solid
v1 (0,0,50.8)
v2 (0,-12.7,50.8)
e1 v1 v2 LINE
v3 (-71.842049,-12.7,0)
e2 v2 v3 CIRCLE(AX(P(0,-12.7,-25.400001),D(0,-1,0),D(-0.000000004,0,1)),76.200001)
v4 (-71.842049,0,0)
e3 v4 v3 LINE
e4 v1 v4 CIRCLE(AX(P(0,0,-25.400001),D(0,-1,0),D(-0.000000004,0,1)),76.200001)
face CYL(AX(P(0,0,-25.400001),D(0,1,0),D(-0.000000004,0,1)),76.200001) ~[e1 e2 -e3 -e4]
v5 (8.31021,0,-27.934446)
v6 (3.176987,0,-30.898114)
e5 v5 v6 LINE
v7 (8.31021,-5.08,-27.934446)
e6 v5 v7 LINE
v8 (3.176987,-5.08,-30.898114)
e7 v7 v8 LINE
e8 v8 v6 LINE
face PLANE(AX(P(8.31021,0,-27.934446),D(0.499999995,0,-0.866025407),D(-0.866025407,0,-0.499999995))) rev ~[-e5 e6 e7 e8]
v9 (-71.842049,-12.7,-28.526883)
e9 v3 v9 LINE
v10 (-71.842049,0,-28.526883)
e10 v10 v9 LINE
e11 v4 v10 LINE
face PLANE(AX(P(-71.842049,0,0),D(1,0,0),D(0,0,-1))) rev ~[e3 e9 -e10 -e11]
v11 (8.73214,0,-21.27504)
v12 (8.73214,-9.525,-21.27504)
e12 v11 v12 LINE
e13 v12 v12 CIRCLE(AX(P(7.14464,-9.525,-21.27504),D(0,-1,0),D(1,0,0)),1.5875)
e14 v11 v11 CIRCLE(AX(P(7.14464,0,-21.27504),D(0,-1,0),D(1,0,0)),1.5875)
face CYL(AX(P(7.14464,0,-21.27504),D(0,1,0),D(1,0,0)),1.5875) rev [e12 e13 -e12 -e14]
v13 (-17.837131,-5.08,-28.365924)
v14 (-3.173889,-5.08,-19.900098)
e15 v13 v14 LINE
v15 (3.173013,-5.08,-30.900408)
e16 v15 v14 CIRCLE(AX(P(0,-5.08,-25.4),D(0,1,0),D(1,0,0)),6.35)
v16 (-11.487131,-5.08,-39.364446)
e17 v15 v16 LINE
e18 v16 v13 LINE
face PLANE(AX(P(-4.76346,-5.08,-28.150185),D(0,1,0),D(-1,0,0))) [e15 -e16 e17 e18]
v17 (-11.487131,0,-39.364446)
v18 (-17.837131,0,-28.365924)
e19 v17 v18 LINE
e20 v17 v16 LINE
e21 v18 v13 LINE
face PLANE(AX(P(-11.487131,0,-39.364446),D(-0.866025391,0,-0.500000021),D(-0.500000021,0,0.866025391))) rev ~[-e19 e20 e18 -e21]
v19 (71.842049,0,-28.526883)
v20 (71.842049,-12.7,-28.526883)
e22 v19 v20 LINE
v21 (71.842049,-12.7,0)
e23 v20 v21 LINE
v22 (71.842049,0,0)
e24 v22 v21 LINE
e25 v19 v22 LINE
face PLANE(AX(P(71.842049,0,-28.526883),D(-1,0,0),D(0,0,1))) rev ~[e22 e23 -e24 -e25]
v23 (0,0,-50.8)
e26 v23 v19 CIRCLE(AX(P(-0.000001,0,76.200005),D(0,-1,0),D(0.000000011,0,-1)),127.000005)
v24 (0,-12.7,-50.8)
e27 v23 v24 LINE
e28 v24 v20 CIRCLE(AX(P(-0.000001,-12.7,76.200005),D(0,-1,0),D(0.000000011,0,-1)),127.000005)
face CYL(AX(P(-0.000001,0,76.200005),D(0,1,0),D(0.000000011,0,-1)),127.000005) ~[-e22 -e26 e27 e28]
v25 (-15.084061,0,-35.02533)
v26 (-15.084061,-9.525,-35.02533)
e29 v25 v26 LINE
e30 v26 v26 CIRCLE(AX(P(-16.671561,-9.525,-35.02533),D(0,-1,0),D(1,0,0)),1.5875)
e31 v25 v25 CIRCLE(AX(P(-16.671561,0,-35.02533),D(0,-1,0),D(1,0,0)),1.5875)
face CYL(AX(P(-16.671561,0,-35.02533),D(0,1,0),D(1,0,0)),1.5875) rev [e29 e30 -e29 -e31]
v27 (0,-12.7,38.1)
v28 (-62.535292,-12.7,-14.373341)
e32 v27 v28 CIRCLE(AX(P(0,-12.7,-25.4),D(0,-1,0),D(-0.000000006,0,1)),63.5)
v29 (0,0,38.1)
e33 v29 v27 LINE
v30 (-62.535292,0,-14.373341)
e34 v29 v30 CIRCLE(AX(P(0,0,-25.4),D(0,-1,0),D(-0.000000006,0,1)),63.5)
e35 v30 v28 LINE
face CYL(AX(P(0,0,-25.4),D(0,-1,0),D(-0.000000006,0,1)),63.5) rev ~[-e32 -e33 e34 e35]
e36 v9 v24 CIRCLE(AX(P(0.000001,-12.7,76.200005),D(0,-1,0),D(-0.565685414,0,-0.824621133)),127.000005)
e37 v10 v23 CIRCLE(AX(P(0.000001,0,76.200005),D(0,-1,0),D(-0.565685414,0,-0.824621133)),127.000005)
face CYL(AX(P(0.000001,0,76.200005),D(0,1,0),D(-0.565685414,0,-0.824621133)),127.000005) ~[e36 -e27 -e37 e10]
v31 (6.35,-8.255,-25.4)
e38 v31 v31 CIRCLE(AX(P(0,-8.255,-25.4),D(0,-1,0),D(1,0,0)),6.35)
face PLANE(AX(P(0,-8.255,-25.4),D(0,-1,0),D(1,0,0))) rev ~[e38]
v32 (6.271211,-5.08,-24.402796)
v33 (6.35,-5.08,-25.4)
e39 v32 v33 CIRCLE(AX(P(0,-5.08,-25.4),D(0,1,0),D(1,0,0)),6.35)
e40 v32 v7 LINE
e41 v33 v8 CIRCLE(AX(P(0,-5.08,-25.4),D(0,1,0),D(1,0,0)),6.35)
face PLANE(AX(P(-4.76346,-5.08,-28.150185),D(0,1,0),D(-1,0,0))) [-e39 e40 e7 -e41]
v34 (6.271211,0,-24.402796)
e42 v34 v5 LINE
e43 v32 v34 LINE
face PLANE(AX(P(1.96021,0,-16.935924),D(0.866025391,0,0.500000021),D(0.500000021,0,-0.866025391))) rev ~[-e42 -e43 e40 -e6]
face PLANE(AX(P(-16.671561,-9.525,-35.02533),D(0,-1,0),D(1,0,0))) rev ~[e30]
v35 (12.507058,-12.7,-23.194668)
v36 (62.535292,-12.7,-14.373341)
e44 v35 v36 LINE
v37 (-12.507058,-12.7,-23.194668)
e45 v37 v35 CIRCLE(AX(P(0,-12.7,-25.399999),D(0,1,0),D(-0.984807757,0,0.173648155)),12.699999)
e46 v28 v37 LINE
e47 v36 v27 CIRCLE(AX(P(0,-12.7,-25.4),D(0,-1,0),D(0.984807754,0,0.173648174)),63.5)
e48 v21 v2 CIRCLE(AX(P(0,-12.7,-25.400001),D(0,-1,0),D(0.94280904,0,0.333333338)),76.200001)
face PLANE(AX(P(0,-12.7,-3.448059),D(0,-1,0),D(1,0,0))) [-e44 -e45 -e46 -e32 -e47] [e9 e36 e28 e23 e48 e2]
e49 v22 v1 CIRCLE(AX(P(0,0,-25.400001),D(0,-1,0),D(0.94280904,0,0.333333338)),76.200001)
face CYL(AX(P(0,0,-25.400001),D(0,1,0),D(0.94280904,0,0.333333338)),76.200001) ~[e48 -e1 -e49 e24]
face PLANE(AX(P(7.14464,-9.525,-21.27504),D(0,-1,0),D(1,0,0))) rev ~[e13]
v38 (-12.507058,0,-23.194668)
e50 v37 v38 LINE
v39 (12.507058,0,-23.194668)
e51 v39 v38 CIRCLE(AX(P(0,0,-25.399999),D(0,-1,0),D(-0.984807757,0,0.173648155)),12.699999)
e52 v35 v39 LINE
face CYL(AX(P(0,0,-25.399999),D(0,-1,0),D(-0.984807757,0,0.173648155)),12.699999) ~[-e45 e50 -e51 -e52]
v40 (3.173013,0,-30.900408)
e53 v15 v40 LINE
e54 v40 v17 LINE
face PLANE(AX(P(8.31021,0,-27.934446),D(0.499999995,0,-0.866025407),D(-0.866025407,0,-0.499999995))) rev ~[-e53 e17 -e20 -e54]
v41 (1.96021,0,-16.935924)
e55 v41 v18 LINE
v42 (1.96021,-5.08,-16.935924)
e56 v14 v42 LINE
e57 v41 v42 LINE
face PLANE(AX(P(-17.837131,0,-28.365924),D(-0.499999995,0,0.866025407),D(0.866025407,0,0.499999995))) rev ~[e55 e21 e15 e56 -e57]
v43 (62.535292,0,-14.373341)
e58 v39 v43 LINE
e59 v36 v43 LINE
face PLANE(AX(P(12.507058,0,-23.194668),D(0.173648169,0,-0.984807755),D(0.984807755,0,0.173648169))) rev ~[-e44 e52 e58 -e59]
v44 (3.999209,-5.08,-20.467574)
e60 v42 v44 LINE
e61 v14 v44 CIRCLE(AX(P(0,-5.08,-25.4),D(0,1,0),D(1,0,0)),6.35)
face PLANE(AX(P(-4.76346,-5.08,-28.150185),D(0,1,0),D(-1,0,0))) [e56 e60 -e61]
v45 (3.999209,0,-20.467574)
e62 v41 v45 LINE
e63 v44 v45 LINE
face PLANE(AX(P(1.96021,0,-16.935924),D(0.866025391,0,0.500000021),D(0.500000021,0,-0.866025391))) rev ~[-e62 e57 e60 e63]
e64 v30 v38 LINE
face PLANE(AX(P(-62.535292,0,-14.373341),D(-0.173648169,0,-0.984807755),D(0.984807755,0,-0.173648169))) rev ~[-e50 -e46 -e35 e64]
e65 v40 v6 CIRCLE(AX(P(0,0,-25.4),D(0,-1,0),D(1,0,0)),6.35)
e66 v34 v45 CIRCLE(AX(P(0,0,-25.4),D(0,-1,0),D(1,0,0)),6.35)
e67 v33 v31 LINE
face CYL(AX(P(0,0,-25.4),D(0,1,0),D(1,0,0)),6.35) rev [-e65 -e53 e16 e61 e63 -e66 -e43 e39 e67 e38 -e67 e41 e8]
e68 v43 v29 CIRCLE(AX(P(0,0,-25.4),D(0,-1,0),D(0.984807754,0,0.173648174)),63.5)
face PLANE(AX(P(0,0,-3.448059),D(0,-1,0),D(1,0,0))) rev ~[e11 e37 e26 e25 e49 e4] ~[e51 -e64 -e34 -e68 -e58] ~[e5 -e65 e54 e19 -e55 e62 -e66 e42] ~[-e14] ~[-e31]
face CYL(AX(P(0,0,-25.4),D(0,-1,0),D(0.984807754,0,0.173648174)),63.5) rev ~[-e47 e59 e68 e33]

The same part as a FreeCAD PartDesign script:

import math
import FreeCAD as App
import Part
import Sketcher
Q = App.Units.Quantity

doc = App.newDocument("Part")
body = doc.addObject("PartDesign::Body", "Body")

# Sketch on XZ plane
sketch1 = doc.addObject("Sketcher::SketchObject", "Sketch")
body.addObject(sketch1)
sketch1.AttachmentSupport = (doc.XZ_Plane, [""])
sketch1.MapMode = "FlatFace"
sketch1.addGeometry(Part.ArcOfCircle(Part.Circle(App.Vector(0, -25, 0), App.Vector(0, 0, 1), 76), math.radians(19), math.radians(90)), False)
sketch1.addGeometry(Part.ArcOfCircle(Part.Circle(App.Vector(0, -25, 0), App.Vector(0, 0, 1), 76), math.radians(90), math.radians(161)), False)
sketch1.addGeometry(Part.LineSegment(App.Vector(-72, 0, 0), App.Vector(-72, -29, 0)), False)
sketch1.addGeometry(Part.ArcOfCircle(Part.Circle(App.Vector(0, 76, 0), App.Vector(0, 0, 1), 127), math.radians(-124), math.radians(-90)), False)
sketch1.addGeometry(Part.ArcOfCircle(Part.Circle(App.Vector(0, 76, 0), App.Vector(0, 0, 1), 127), math.radians(-90), math.radians(-56)), False)
sketch1.addGeometry(Part.LineSegment(App.Vector(72, -29, 0), App.Vector(72, 0, 0)), False)
sketch1.addConstraint(Sketcher.Constraint("Tangent", 0, 2, 1, 1))
sketch1.addConstraint(Sketcher.Constraint("Coincident", 1, 2, 2, 1))
sketch1.addConstraint(Sketcher.Constraint("Coincident", 2, 2, 3, 1))
sketch1.addConstraint(Sketcher.Constraint("Tangent", 3, 2, 4, 1))
sketch1.addConstraint(Sketcher.Constraint("Coincident", 4, 2, 5, 1))
sketch1.addConstraint(Sketcher.Constraint("Coincident", 5, 2, 0, 1))
sketch1.addConstraint(Sketcher.Constraint("Vertical", 2))
sketch1.addConstraint(Sketcher.Constraint("Vertical", 5))
sketch1.addConstraint(Sketcher.Constraint("Equal", 0, 1))
sketch1.addConstraint(Sketcher.Constraint("Equal", 3, 4))
sketch1.addConstraint(Sketcher.Constraint("Symmetric", 0, 2, 3, 2, -1, 1))
sketch1.addConstraint(Sketcher.Constraint("Symmetric", 1, 2, 5, 2, -1, 1))
sketch1.addConstraint(Sketcher.Constraint("PointOnObject", 0, 3, -2))
sketch1.addConstraint(Sketcher.Constraint("PointOnObject", 3, 3, -2))
sketch1.addConstraint(Sketcher.Constraint("PointOnObject", 0, 2, -2))
sketch1.addConstraint(Sketcher.Constraint("Radius", 0, Q("3 in")))
sketch1.addConstraint(Sketcher.Constraint("Radius", 3, Q("5.0000002 in")))
sketch1.addConstraint(Sketcher.Constraint("DistanceY", 0, 3, -1, 1, Q("1 in")))
pad1 = doc.addObject("PartDesign::Pad", "Pad")
body.addObject(pad1)
pad1.Profile = sketch1
pad1.Length = Q("0.5 in")

# Sketch on XZ plane
sketch2 = doc.addObject("Sketcher::SketchObject", "Sketch001")
body.addObject(sketch2)
sketch2.AttachmentSupport = (doc.XZ_Plane, [""])
sketch2.MapMode = "FlatFace"
sketch2.addGeometry(Part.ArcOfCircle(Part.Circle(App.Vector(0, -25, 0), App.Vector(0, 0, 1), 64), math.radians(10), math.radians(90)), False)
sketch2.addGeometry(Part.ArcOfCircle(Part.Circle(App.Vector(0, -25, 0), App.Vector(0, 0, 1), 64), math.radians(90), math.radians(170)), False)
sketch2.addGeometry(Part.LineSegment(App.Vector(-63, -14, 0), App.Vector(-13, -23, 0)), False)
sketch2.addGeometry(Part.ArcOfCircle(Part.Circle(App.Vector(0, -25, 0), App.Vector(0, 0, 1), 13), math.radians(10), math.radians(170)), False)
sketch2.addGeometry(Part.LineSegment(App.Vector(13, -23, 0), App.Vector(63, -14, 0)), False)
sketch2.addConstraint(Sketcher.Constraint("Tangent", 0, 2, 1, 1))
sketch2.addConstraint(Sketcher.Constraint("Coincident", 1, 2, 2, 1))
sketch2.addConstraint(Sketcher.Constraint("Coincident", 2, 2, 3, 2))
sketch2.addConstraint(Sketcher.Constraint("Coincident", 3, 1, 4, 1))
sketch2.addConstraint(Sketcher.Constraint("Coincident", 4, 2, 0, 1))
sketch2.addConstraint(Sketcher.Constraint("Coincident", 3, 3, 0, 3))
sketch2.addConstraint(Sketcher.Constraint("Equal", 0, 1))
sketch2.addConstraint(Sketcher.Constraint("Symmetric", 2, 2, 3, 1, -2))
sketch2.addConstraint(Sketcher.Constraint("PointOnObject", 0, 2, -2))
sketch2.addConstraint(Sketcher.Constraint("Horizontal", 1, 2, 4, 2))
sketch2.addConstraint(Sketcher.Constraint("Radius", 0, Q("2.5 in")))
sketch2.addConstraint(Sketcher.Constraint("Radius", 3, Q("0.5 in")))
sketch2.addConstraint(Sketcher.Constraint("DistanceY", 0, 3, -1, 1, Q("1 in")))
sketch2.addConstraint(Sketcher.Constraint("Angle", 2, Q("-9.999999 deg")))
sketch2.addConstraint(Sketcher.Constraint("DistanceY", 1, 2, -1, 1, Q("14.373341 mm")))
pocket1 = doc.addObject("PartDesign::Pocket", "Pocket")
body.addObject(pocket1)
pocket1.Profile = sketch2
pocket1.Length = Q("1 in")
pocket1.Midplane = True

# Sketch on XZ plane
sketch3 = doc.addObject("Sketcher::SketchObject", "Sketch002")
body.addObject(sketch3)
sketch3.AttachmentSupport = (doc.XZ_Plane, [""])
sketch3.MapMode = "FlatFace"
sketch3.addGeometry(Part.Circle(App.Vector(0, -25, 0), App.Vector(0, 0, 1), 6), False)
sketch3.addConstraint(Sketcher.Constraint("PointOnObject", 0, 3, -2))
sketch3.addConstraint(Sketcher.Constraint("Diameter", 0, Q("0.5 in")))
sketch3.addConstraint(Sketcher.Constraint("DistanceY", 0, 3, -1, 1, Q("1 in")))
pocket2 = doc.addObject("PartDesign::Pocket", "Pocket001")
body.addObject(pocket2)
pocket2.Profile = sketch3
pocket2.Length = Q("0.325 in")
pocket2.Reversed = True

# Sketch on XZ plane
sketch4 = doc.addObject("Sketcher::SketchObject", "Sketch003")
body.addObject(sketch4)
sketch4.AttachmentSupport = (doc.XZ_Plane, [""])
sketch4.MapMode = "FlatFace"
sketch4.addGeometry(Part.Circle(App.Vector(7.1, -21.3, 0), App.Vector(0, 0, 1), 1.6), False)
sketch4.addGeometry(Part.Circle(App.Vector(-16.7, -35, 0), App.Vector(0, 0, 1), 1.6), False)
sketch4.addConstraint(Sketcher.Constraint("Equal", 0, 1))
sketch4.addConstraint(Sketcher.Constraint("Diameter", 0, Q("0.125 in")))
sketch4.addConstraint(Sketcher.Constraint("DistanceY", 0, 3, -1, 1, Q("0.8376 in")))
sketch4.addConstraint(Sketcher.Constraint("DistanceX", 1, 3, 0, 3, Q("23.816201 mm")))
sketch4.addConstraint(Sketcher.Constraint("DistanceX", -1, 1, 0, 3, Q("7.14464 mm")))
sketch4.addConstraint(Sketcher.Constraint("DistanceY", 1, 3, -1, 1, Q("35.02533 mm")))
pocket3 = doc.addObject("PartDesign::Pocket", "Pocket002")
body.addObject(pocket3)
pocket3.Profile = sketch4
pocket3.Length = Q("0.375 in")
pocket3.Reversed = True

# Sketch on XZ plane
sketch5 = doc.addObject("Sketcher::SketchObject", "Sketch004")
body.addObject(sketch5)
sketch5.AttachmentSupport = (doc.XZ_Plane, [""])
sketch5.MapMode = "FlatFace"
sketch5.addGeometry(Part.LineSegment(App.Vector(2, -17, 0), App.Vector(8, -28, 0)), False)
sketch5.addGeometry(Part.LineSegment(App.Vector(8, -28, 0), App.Vector(-11, -39, 0)), False)
sketch5.addGeometry(Part.LineSegment(App.Vector(-11, -39, 0), App.Vector(-18, -28, 0)), False)
sketch5.addGeometry(Part.LineSegment(App.Vector(-18, -28, 0), App.Vector(2, -17, 0)), False)
sketch5.addConstraint(Sketcher.Constraint("Coincident", 0, 2, 1, 1))
sketch5.addConstraint(Sketcher.Constraint("Coincident", 1, 2, 2, 1))
sketch5.addConstraint(Sketcher.Constraint("Coincident", 2, 2, 3, 1))
sketch5.addConstraint(Sketcher.Constraint("Coincident", 3, 2, 0, 1))
sketch5.addConstraint(Sketcher.Constraint("Perpendicular", 0, 1))
sketch5.addConstraint(Sketcher.Constraint("Perpendicular", 1, 2))
sketch5.addConstraint(Sketcher.Constraint("Perpendicular", 2, 3))
sketch5.addConstraint(Sketcher.Constraint("Angle", 0, Q("-59.999999 deg")))
sketch5.addConstraint(Sketcher.Constraint("Distance", 0, Q("0.5 in")))
sketch5.addConstraint(Sketcher.Constraint("Distance", 1, Q("0.9 in")))
sketch5.addConstraint(Sketcher.Constraint("DistanceX", -1, 1, 0, 2, Q("8.31021 mm")))
sketch5.addConstraint(Sketcher.Constraint("DistanceY", 0, 2, -1, 1, Q("27.934446 mm")))
pocket4 = doc.addObject("PartDesign::Pocket", "Pocket003")
body.addObject(pocket4)
pocket4.Profile = sketch5
pocket4.Length = Q("0.2 in")
pocket4.Reversed = True

doc.recompute()
